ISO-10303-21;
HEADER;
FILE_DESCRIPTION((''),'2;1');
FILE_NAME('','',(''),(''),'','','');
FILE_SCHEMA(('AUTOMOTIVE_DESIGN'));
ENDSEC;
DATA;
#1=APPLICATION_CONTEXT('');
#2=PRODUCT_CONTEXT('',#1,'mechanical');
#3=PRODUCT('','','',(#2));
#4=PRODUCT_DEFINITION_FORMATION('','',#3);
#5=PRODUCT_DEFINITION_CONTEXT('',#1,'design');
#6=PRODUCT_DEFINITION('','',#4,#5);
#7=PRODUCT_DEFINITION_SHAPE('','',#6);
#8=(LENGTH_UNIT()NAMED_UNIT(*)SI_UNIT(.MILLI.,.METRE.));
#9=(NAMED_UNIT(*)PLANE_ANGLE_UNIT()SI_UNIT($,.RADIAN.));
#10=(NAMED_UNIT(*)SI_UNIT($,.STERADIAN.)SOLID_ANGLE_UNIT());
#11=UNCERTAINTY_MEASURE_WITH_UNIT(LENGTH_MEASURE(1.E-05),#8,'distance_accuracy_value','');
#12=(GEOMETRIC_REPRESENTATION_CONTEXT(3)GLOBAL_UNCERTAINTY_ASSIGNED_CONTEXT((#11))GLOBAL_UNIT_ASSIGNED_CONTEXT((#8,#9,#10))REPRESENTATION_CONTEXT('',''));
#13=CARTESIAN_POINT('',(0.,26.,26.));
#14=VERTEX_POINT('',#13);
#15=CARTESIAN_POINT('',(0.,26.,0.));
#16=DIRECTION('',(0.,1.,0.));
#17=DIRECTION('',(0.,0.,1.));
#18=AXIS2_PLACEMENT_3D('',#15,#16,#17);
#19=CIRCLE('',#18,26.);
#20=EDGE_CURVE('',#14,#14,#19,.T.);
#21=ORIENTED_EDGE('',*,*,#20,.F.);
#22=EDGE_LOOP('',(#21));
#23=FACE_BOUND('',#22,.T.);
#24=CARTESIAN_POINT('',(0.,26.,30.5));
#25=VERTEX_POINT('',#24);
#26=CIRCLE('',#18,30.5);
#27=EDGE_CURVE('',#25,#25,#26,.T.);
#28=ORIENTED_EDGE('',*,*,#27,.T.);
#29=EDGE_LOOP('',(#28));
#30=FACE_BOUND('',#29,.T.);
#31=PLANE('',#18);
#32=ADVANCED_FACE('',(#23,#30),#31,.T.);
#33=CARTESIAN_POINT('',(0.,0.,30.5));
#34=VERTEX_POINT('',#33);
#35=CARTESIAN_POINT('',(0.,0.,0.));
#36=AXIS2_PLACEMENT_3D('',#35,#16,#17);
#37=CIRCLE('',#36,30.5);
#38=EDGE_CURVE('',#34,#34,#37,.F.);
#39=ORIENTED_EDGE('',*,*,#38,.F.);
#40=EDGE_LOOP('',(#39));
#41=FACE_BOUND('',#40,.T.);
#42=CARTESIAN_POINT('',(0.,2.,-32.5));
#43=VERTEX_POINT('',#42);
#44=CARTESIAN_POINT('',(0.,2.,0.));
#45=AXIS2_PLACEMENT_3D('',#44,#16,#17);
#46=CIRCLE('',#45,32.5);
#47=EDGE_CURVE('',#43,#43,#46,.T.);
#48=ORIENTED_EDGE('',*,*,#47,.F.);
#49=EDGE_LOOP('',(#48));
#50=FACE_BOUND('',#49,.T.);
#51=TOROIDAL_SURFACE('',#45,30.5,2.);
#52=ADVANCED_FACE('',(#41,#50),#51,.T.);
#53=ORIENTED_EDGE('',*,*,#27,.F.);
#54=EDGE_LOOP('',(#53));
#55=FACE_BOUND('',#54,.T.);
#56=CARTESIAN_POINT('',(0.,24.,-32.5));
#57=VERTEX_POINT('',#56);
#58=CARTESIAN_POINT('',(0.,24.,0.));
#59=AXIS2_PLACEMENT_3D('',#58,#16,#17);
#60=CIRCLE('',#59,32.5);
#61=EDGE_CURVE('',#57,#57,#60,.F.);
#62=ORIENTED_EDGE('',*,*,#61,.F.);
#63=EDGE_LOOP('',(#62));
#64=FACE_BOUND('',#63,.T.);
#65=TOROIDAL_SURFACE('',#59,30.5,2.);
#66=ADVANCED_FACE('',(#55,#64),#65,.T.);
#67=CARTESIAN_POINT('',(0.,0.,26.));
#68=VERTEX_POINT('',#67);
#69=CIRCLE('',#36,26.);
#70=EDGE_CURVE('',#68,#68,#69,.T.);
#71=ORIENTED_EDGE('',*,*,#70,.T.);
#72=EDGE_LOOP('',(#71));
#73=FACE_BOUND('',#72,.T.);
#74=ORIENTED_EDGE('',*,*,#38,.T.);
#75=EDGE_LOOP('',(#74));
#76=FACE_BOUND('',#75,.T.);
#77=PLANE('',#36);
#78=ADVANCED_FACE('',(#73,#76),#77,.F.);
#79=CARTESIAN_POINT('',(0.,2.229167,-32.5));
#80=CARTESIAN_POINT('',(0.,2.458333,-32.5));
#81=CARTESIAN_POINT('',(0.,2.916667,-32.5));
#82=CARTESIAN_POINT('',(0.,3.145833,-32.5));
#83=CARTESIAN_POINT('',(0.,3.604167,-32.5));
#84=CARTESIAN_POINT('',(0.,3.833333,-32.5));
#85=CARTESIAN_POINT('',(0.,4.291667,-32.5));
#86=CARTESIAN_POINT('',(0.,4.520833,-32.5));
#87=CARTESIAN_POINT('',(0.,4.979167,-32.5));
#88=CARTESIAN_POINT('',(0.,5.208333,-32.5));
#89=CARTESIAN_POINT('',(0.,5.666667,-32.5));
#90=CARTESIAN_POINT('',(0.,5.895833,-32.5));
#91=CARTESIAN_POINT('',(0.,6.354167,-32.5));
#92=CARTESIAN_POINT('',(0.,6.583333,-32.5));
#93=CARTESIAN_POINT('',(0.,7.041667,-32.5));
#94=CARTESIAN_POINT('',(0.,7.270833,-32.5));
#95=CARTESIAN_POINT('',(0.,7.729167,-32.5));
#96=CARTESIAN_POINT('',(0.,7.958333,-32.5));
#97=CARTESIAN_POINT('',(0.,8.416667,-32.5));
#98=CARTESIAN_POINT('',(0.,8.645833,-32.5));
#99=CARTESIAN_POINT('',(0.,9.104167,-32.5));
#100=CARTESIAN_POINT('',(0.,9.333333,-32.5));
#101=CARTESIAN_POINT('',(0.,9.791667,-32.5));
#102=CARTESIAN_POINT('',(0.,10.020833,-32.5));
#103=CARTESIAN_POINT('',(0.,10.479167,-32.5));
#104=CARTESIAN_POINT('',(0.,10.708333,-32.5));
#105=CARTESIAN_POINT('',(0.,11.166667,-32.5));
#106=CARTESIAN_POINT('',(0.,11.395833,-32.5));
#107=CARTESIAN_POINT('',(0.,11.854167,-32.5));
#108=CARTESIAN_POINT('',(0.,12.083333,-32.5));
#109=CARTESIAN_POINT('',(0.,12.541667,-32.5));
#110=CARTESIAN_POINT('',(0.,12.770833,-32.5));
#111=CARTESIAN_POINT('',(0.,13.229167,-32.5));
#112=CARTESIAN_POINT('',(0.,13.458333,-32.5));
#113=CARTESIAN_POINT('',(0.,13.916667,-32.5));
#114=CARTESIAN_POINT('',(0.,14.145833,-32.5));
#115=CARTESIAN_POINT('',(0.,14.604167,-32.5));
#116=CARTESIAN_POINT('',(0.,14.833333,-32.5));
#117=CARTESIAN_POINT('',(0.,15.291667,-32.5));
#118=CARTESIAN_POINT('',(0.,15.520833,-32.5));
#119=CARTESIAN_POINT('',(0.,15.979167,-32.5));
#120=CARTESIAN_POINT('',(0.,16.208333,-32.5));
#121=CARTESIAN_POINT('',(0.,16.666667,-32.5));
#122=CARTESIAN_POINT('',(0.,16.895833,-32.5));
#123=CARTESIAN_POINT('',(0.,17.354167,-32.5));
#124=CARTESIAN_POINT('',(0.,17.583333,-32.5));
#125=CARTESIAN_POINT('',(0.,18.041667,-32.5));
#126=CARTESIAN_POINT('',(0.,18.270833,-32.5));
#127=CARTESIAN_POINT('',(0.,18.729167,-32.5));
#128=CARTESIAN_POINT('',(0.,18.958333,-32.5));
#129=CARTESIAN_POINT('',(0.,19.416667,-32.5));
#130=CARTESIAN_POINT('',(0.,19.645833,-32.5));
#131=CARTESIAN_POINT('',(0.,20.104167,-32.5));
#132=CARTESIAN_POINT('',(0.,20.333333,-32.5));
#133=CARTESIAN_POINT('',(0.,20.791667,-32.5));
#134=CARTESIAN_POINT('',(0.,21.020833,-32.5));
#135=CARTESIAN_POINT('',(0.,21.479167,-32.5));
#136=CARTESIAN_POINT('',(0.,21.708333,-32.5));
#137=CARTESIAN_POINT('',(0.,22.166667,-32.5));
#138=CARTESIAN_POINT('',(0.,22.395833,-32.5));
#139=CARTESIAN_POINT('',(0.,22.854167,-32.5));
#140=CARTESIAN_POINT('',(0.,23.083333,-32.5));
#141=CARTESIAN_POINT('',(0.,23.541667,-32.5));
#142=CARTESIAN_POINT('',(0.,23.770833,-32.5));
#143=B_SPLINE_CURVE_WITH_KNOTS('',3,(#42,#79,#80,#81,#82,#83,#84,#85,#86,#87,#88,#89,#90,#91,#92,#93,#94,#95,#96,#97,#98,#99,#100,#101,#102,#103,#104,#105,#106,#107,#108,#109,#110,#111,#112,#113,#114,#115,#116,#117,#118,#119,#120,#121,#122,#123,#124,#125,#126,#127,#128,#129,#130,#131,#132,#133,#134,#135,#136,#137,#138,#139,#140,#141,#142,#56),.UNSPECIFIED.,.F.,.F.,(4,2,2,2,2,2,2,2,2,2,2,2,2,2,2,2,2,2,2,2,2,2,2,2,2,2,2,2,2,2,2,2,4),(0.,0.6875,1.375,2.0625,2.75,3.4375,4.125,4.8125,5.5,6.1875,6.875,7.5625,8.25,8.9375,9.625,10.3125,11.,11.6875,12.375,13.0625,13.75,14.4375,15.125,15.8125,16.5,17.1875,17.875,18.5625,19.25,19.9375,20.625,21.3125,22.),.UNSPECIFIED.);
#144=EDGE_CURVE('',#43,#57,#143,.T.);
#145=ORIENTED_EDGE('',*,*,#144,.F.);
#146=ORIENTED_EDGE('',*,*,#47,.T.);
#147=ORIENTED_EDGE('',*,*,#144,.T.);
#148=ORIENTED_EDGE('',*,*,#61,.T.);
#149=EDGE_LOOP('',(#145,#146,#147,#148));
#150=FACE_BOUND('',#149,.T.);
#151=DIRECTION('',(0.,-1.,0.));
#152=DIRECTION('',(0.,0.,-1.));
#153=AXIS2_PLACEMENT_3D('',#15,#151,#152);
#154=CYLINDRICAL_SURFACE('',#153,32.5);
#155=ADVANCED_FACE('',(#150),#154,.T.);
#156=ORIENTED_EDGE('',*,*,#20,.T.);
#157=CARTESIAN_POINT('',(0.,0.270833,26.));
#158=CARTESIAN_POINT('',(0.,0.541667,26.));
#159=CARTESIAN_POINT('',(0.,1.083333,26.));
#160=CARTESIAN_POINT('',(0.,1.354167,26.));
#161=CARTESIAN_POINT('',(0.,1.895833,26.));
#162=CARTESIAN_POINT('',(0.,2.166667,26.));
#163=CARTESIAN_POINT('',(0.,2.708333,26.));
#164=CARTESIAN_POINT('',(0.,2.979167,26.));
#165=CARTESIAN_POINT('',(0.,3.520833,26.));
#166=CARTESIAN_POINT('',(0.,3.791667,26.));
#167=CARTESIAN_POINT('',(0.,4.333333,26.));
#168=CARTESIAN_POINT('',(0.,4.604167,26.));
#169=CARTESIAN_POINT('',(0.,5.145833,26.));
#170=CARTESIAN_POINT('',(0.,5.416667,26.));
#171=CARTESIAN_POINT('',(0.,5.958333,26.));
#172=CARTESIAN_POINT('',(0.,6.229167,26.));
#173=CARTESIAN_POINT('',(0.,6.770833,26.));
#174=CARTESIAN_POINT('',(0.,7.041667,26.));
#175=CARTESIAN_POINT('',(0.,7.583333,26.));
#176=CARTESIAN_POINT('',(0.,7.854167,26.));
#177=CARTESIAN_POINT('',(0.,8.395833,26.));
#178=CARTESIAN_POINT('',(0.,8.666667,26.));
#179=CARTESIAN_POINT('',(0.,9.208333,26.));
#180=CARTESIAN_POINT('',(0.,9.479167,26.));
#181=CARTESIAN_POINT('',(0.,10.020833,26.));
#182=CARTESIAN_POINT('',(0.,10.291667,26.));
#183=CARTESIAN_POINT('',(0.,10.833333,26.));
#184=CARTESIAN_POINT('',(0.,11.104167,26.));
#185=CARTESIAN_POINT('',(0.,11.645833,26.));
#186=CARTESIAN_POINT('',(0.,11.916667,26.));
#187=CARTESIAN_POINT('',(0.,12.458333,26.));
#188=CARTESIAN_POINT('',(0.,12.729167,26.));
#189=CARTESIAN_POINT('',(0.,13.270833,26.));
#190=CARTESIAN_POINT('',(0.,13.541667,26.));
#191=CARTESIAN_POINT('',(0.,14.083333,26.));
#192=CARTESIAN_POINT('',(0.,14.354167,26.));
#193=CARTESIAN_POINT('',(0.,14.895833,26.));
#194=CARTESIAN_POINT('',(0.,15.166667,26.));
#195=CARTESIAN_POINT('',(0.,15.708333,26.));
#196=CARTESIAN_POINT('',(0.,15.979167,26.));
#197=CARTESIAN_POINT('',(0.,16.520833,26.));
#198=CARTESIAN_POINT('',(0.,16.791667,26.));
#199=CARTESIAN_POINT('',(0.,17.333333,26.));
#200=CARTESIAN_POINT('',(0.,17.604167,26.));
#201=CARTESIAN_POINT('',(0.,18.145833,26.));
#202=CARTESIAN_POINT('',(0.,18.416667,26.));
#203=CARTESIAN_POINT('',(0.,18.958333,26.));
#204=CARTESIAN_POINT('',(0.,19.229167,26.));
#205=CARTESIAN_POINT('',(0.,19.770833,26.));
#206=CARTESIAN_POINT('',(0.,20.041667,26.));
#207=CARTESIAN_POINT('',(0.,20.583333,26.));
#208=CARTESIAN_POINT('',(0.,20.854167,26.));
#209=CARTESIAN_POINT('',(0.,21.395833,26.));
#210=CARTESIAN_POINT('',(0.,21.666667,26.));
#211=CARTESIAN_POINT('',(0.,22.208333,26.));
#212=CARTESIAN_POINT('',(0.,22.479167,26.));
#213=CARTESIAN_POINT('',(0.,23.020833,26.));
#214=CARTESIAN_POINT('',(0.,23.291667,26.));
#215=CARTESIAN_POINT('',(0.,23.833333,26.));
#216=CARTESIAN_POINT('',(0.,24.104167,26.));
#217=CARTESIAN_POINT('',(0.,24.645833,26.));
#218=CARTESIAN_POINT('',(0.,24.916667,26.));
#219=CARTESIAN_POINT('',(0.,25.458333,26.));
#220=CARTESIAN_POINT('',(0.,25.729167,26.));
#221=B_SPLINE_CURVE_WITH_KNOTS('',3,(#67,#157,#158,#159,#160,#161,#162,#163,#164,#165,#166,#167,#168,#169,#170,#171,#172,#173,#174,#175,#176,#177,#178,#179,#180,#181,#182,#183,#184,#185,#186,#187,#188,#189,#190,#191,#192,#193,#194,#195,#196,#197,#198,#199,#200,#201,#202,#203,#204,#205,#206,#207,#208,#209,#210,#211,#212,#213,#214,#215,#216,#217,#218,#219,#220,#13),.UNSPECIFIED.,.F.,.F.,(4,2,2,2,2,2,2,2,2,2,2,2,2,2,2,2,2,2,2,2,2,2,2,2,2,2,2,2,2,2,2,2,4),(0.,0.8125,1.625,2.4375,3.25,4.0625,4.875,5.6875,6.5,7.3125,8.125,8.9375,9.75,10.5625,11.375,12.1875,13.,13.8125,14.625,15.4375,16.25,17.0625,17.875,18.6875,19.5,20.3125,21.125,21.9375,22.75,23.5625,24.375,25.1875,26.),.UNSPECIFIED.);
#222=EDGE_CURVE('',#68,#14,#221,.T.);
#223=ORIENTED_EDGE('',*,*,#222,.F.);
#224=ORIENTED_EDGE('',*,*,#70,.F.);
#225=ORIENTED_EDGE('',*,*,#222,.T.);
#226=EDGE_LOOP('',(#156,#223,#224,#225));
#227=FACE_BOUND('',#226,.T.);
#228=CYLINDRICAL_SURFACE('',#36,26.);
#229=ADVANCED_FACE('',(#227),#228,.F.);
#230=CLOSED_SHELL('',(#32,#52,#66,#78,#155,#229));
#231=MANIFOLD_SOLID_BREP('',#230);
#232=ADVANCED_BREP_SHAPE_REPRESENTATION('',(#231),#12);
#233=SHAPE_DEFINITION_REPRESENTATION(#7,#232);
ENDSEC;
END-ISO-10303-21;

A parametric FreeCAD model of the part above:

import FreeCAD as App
import Part
import Sketcher
from FreeCAD import Vector


def edges_at(feature, points):
    """Names of the edges that pass closest to the given points."""
    edges = feature.Shape.Edges
    near = lambda p: min(range(len(edges)), key=lambda i: edges[i].distToShape(Part.Vertex(*p))[0])
    return sorted({f"Edge{near(p) + 1}" for p in points})

doc = App.newDocument("Part")
body = doc.addObject("PartDesign::Body", "Body")

# Sketch on XZ plane
sketch1 = doc.addObject("Sketcher::SketchObject", "Sketch")
body.addObject(sketch1)
sketch1.AttachmentSupport = (doc.XZ_Plane, [""])
sketch1.MapMode = "FlatFace"
sketch1.addGeometry(Part.Circle(Vector(0, 0, 0), Vector(0, 0, 1), 32), False)
sketch1.addConstraint([
    Sketcher.Constraint("Coincident", 0, 3, -1, 1),
    Sketcher.Constraint("Diameter", 0, 65.0),
])
pad1 = doc.addObject("PartDesign::Pad", "Pad")
body.addObject(pad1)
pad1.Profile = sketch1
pad1.Length = 26
pad1.Reversed = True

# Sketch on XZ plane
sketch2 = doc.addObject("Sketcher::SketchObject", "Sketch001")
body.addObject(sketch2)
sketch2.AttachmentSupport = (doc.XZ_Plane, [""])
sketch2.MapMode = "FlatFace"
sketch2.AttachmentOffset = App.Placement(Vector(0, 0, -26), App.Rotation())
sketch2.addGeometry(Part.Circle(Vector(0, 0, 0), Vector(0, 0, 1), 26), False)
sketch2.addConstraint([
    Sketcher.Constraint("Coincident", 0, 3, -1, 1),
    Sketcher.Constraint("Diameter", 0, 52.0),
])
pocket1 = doc.addObject("PartDesign::Pocket", "Pocket")
body.addObject(pocket1)
pocket1.Profile = sketch2
pocket1.Type = "ThroughAll"
pocket1.Reversed = True
doc.recompute()

fillet = doc.addObject("PartDesign::Fillet", "Fillet")
body.addObject(fillet)
fillet.Base = (pocket1, edges_at(pocket1, [(0, 0, 32.5), (0, 26, 32.5)]))
fillet.Radius = 2

doc.recompute()
